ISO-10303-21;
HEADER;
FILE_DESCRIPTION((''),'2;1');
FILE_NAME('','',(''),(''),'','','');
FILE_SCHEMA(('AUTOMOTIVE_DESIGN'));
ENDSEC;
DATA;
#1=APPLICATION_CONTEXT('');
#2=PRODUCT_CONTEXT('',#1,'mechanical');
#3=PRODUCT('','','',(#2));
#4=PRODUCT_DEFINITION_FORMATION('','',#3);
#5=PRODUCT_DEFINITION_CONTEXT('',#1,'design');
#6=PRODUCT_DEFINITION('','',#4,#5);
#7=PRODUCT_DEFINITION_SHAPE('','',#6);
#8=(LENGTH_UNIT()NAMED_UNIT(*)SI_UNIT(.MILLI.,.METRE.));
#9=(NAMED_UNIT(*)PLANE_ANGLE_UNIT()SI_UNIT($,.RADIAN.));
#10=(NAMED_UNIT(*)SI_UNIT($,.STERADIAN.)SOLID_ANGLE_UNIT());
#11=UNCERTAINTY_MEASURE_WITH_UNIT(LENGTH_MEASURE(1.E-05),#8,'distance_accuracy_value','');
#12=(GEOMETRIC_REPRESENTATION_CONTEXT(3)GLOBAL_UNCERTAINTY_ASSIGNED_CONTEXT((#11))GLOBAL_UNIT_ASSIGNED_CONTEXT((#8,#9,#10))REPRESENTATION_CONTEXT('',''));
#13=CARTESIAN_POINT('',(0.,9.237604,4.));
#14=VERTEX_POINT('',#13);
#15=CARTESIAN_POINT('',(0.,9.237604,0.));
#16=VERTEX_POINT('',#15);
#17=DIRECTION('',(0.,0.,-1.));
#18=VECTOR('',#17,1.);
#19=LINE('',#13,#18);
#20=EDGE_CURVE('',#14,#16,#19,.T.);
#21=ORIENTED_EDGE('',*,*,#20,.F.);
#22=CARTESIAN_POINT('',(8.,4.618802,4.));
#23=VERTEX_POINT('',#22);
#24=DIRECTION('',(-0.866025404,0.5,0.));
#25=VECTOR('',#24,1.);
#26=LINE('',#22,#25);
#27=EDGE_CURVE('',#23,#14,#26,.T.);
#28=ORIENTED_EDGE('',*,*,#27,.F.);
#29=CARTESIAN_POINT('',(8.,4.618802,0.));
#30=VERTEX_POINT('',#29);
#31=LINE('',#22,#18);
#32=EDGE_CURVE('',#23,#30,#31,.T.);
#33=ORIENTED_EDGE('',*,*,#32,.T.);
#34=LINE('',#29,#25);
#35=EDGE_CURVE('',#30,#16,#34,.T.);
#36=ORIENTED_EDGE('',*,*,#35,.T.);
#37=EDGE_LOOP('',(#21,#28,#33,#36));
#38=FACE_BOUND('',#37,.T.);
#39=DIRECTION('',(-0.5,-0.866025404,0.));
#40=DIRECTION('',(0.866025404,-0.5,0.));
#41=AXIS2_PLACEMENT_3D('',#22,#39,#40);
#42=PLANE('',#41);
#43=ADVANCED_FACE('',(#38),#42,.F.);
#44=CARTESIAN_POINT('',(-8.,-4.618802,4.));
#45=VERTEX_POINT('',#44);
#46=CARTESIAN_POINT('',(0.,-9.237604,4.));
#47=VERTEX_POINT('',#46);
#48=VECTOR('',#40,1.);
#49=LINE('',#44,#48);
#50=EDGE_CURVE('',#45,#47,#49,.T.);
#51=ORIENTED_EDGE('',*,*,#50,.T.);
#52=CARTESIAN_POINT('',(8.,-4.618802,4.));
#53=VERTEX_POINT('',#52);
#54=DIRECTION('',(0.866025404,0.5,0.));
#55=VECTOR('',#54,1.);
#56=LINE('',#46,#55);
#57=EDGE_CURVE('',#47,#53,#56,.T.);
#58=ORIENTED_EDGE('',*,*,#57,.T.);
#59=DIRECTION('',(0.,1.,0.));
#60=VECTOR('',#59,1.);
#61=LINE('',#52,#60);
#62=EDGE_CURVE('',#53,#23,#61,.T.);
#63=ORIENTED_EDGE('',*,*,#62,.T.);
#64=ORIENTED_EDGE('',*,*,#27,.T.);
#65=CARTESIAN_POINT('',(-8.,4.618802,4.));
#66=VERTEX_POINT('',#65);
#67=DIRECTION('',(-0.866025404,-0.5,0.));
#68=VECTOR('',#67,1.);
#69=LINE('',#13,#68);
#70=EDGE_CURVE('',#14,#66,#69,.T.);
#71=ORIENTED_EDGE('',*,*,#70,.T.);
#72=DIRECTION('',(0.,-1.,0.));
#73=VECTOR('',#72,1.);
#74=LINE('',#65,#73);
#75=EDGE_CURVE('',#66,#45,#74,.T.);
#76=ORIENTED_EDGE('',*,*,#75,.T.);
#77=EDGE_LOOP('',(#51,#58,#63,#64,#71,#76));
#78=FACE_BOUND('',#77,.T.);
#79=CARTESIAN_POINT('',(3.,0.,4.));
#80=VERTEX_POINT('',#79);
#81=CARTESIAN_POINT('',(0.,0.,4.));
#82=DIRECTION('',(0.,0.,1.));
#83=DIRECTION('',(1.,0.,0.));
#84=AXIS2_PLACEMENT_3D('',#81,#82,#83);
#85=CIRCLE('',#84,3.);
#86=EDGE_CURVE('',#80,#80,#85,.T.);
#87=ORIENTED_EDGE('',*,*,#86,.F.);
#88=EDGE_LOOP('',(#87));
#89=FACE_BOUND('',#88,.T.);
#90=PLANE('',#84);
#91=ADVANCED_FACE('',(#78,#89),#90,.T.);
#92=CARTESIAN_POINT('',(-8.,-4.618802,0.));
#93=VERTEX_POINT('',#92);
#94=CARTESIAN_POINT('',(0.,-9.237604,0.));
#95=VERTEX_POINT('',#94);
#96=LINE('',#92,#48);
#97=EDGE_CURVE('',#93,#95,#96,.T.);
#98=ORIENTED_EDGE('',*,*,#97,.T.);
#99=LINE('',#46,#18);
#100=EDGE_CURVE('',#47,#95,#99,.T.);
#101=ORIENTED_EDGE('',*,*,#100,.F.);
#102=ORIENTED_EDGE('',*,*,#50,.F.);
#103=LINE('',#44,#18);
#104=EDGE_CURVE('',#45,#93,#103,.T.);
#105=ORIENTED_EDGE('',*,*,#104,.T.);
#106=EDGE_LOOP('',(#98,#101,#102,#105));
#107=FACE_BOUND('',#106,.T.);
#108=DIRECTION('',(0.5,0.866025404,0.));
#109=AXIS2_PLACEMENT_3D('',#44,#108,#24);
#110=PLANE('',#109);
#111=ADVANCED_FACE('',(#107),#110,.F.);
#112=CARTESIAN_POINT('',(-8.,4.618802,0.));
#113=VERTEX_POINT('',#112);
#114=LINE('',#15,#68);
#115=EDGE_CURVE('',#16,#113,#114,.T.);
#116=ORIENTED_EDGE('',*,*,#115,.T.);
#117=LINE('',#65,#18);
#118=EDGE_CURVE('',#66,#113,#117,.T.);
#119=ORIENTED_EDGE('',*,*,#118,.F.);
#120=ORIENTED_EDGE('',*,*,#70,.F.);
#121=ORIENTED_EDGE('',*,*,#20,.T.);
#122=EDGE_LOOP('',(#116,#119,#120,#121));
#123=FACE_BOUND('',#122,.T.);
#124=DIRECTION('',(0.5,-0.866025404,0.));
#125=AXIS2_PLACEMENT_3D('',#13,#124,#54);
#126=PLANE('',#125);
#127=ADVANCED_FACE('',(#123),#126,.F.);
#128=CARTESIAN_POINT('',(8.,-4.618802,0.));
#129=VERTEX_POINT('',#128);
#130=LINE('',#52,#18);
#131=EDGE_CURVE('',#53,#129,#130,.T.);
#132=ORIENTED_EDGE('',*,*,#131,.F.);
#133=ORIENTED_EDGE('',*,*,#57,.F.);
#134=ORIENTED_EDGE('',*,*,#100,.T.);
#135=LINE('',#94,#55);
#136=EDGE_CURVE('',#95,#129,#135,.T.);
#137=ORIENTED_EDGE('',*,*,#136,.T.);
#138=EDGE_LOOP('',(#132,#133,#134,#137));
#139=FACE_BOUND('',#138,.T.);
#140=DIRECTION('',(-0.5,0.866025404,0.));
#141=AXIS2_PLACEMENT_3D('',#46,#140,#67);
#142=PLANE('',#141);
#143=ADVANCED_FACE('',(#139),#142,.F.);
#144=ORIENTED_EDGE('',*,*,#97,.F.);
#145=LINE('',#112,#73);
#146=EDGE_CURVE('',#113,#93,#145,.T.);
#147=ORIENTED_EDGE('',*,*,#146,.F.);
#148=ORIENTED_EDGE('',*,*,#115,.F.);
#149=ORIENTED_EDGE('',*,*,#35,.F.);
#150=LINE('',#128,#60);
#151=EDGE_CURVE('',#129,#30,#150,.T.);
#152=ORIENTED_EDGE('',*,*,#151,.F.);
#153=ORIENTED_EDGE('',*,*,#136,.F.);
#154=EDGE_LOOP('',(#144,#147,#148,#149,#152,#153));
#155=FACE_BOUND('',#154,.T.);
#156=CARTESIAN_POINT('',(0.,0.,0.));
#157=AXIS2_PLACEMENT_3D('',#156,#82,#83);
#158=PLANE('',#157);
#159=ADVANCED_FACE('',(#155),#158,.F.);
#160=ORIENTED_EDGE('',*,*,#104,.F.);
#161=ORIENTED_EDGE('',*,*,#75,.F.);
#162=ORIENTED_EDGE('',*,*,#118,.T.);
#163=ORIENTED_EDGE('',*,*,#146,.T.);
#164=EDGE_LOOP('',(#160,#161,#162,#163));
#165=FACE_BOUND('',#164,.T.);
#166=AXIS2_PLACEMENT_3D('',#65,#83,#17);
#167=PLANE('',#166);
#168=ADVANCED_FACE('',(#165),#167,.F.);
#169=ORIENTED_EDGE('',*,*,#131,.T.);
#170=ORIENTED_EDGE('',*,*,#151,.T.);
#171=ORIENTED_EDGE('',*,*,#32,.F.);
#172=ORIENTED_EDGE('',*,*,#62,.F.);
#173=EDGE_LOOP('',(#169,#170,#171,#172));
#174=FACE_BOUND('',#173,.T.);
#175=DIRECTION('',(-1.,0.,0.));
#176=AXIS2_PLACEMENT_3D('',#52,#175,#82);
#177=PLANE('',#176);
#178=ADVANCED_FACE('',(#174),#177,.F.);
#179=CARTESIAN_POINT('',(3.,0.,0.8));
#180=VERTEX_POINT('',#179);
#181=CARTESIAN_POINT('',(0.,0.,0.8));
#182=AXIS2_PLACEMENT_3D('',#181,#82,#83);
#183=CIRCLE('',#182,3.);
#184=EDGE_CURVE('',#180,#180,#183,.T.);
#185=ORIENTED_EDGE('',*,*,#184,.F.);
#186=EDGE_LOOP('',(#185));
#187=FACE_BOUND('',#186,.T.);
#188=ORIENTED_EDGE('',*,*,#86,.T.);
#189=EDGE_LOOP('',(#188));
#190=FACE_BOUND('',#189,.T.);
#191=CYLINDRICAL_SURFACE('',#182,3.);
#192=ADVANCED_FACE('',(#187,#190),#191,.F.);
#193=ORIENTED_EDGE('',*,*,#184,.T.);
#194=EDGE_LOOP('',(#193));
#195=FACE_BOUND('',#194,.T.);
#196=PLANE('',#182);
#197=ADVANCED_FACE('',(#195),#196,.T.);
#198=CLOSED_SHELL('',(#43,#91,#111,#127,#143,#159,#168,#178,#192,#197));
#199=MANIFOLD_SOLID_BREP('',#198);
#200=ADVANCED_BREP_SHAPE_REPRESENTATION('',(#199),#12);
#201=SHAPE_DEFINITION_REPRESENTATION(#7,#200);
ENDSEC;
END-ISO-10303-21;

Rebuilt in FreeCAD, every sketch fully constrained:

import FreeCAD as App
import Part
import Sketcher
Q = App.Units.Quantity


def add_polygon(sketch, points):
    """Adds a closed chain of lines whose ends are joined by coincident constraints."""
    first, n = sketch.GeometryCount, len(points)
    for a, b in zip(points, points[1:] + points[:1]):
        sketch.addGeometry(Part.LineSegment(App.Vector(*a, 0), App.Vector(*b, 0)), False)
    for i in range(n):
        sketch.addConstraint(Sketcher.Constraint("Coincident", first + i, 2, first + (i + 1) % n, 1))

doc = App.newDocument("Part")
params = doc.addObject("Spreadsheet::Sheet", "Params")
for row, (alias, value) in enumerate([
    ("pad1_length", "4 mm"),
    ("sketch2_diameter", "6 mm"),
    ("pocket1_length", "3.2 mm"),
], start=1):
    params.set(f"A{row}", alias)
    params.set(f"B{row}", "=" + value)
    params.setAlias(f"B{row}", alias)

body = doc.addObject("PartDesign::Body", "Body")

# Sketch on XY plane
sketch1 = body.newObject("Sketcher::SketchObject", "Sketch")
sketch1.AttachmentSupport = (doc.getObject("XY_Plane"), [""])
sketch1.MapMode = "FlatFace"
add_polygon(sketch1, [(0, 9.237604), (-8, 4.618802), (-8, -4.618802), (0, -9.237604), (8, -4.618802), (8, 4.618802)])  # lines 0-5
sketch1.addConstraint(Sketcher.Constraint("Vertical", 1))
sketch1.addConstraint(Sketcher.Constraint("Vertical", 4))
sketch1.addConstraint(Sketcher.Constraint("Symmetric", 0, 2, 3, 2, -1, 1))
sketch1.addConstraint(Sketcher.Constraint("Symmetric", 2, 2, 5, 2, -1, 1))
sketch1.addConstraint(Sketcher.Constraint("PointOnObject", 2, 2, -2))
sketch1.addConstraint(Sketcher.Constraint("Parallel", 2, 5))
sketch1.addConstraint(Sketcher.Constraint("Horizontal", 1, 2, 3, 2))
sketch1.addConstraint(Sketcher.Constraint("Angle", 0, Q("-150 deg")))
sketch1.addConstraint(Sketcher.Constraint("DistanceX", 0, 2, -1, 1, 8.0))
sketch1.addConstraint(Sketcher.Constraint("DistanceY", 1, 2, 1, 1, 9.237604))
pad1 = body.newObject("PartDesign::Pad", "Pad")
pad1.Profile = sketch1
pad1.setExpression("Length", "Params.pad1_length")

# Sketch on XY plane
sketch2 = body.newObject("Sketcher::SketchObject", "Sketch001")
sketch2.AttachmentSupport = (doc.getObject("XY_Plane"), [""])
sketch2.MapMode = "FlatFace"
sketch2.AttachmentOffset = App.Placement(App.Vector(0, 0, 4), App.Rotation())
sketch2.addGeometry(Part.Circle(App.Vector(0, 0, 0), App.Vector(0, 0, 1), 3), False)
sketch2.addConstraint(Sketcher.Constraint("Coincident", 0, 3, -1, 1))
sketch2.addConstraint(Sketcher.Constraint("Diameter", 0, 6.0))
sketch2.setExpression("Constraints[1]", "Params.sketch2_diameter")
pocket1 = body.newObject("PartDesign::Pocket", "Pocket")
pocket1.Profile = sketch2
pocket1.setExpression("Length", "Params.pocket1_length")

doc.recompute()
